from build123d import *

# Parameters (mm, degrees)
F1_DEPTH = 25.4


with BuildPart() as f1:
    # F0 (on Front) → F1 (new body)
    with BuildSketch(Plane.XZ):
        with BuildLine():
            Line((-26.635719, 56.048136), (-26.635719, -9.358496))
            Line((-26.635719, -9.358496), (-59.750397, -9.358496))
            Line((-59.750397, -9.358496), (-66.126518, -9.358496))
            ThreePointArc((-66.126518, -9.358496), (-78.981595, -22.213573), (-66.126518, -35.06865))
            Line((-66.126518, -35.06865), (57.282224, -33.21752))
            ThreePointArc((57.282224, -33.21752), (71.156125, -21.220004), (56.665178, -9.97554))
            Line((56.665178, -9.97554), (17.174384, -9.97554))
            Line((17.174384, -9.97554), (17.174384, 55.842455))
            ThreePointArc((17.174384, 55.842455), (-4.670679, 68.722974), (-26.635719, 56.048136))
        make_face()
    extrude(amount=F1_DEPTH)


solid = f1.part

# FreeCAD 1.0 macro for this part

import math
import FreeCAD as App
import Part
import Sketcher
Q = App.Units.Quantity

doc = App.newDocument("Part")
params = doc.addObject("Spreadsheet::Sheet", "Params")
for row, (alias, value) in enumerate([
    ("pad1_length", "1 in"),
], start=1):
    params.set(f"A{row}", alias)
    params.set(f"B{row}", "=" + value)
    params.setAlias(f"B{row}", alias)

body = doc.addObject("PartDesign::Body", "Body")

# Sketch on XZ plane
sketch1 = body.newObject("Sketcher::SketchObject", "Sketch")
sketch1.AttachmentSupport = (doc.getObject("XZ_Plane"), [""])
sketch1.MapMode = "FlatFace"
sketch1.addGeometry([
    Part.LineSegment(App.Vector(-27, 56, 0), App.Vector(-27, -9, 0)),  # 0
    Part.LineSegment(App.Vector(-27, -9, 0), App.Vector(-66, -9, 0)),  # 1
    Part.ArcOfCircle(Part.Circle(App.Vector(-66, -22, 0), App.Vector(0, 0, 1), 13), math.radians(90), math.radians(270)),  # 2
    Part.LineSegment(App.Vector(-66, -35, 0), App.Vector(57, -33, 0)),  # 3
    Part.ArcOfCircle(Part.Circle(App.Vector(59, -22, 0), App.Vector(0, 0, 1), 12), math.radians(-100), math.radians(103)),  # 4
    Part.LineSegment(App.Vector(57, -10, 0), App.Vector(17, -10, 0)),  # 5
    Part.LineSegment(App.Vector(17, -10, 0), App.Vector(17, 56, 0)),  # 6
    Part.ArcOfCircle(Part.Circle(App.Vector(-5, 44, 0), App.Vector(0, 0, 1), 25), math.radians(29), math.radians(150)),  # 7
], False)
sketch1.addConstraint([
    Sketcher.Constraint("Coincident", 0, 2, 1, 1),
    Sketcher.Constraint("Tangent", 1, 2, 2, 1),
    Sketcher.Constraint("Coincident", 2, 2, 3, 1),
    Sketcher.Constraint("Coincident", 3, 2, 4, 1),
    Sketcher.Constraint("Coincident", 4, 2, 5, 1),
    Sketcher.Constraint("Coincident", 5, 2, 6, 1),
    Sketcher.Constraint("Coincident", 6, 2, 7, 1),
    Sketcher.Constraint("Coincident", 7, 2, 0, 1),
    Sketcher.Constraint("Vertical", 0),
    Sketcher.Constraint("Horizontal", 1),
    Sketcher.Constraint("Horizontal", 5),
    Sketcher.Constraint("Vertical", 6),
    Sketcher.Constraint("Vertical", 1, 2, 2, 2),
    Sketcher.Constraint("Radius", 4, Q("11.856472 mm")),
    Sketcher.Constraint("Radius", 7, Q("25.165269 mm")),
    Sketcher.Constraint("DistanceX", 1, 2, 1, 1, Q("39.490799 mm")),
    Sketcher.Constraint("Radius", 2, Q("12.855077 mm")),
    Sketcher.Constraint("DistanceY", 0, 2, 0, 1, Q("65.406632 mm")),
    Sketcher.Constraint("DistanceX", 7, 3, 4, 2, Q("61.454002 mm")),
    Sketcher.Constraint("DistanceX", 5, 2, 5, 1, Q("39.490794 mm")),
    Sketcher.Constraint("DistanceY", 6, 1, 6, 2, Q("65.817995 mm")),
    Sketcher.Constraint("DistanceX", 2, 3, -1, 1, Q("66.126518 mm")),
    Sketcher.Constraint("DistanceX", -1, 1, 4, 3, Q("59.30383 mm")),
    Sketcher.Constraint("DistanceY", 2, 2, -1, 1, Q("35.06865 mm")),
    Sketcher.Constraint("DistanceY", 3, 2, -1, 1, Q("33.21752 mm")),
    Sketcher.Constraint("DistanceY", 4, 2, -1, 1, Q("9.97554 mm")),
])
pad1 = body.newObject("PartDesign::Pad", "Pad")
pad1.Profile = sketch1
pad1.setExpression("Length", "Params.pad1_length")

doc.recompute()
